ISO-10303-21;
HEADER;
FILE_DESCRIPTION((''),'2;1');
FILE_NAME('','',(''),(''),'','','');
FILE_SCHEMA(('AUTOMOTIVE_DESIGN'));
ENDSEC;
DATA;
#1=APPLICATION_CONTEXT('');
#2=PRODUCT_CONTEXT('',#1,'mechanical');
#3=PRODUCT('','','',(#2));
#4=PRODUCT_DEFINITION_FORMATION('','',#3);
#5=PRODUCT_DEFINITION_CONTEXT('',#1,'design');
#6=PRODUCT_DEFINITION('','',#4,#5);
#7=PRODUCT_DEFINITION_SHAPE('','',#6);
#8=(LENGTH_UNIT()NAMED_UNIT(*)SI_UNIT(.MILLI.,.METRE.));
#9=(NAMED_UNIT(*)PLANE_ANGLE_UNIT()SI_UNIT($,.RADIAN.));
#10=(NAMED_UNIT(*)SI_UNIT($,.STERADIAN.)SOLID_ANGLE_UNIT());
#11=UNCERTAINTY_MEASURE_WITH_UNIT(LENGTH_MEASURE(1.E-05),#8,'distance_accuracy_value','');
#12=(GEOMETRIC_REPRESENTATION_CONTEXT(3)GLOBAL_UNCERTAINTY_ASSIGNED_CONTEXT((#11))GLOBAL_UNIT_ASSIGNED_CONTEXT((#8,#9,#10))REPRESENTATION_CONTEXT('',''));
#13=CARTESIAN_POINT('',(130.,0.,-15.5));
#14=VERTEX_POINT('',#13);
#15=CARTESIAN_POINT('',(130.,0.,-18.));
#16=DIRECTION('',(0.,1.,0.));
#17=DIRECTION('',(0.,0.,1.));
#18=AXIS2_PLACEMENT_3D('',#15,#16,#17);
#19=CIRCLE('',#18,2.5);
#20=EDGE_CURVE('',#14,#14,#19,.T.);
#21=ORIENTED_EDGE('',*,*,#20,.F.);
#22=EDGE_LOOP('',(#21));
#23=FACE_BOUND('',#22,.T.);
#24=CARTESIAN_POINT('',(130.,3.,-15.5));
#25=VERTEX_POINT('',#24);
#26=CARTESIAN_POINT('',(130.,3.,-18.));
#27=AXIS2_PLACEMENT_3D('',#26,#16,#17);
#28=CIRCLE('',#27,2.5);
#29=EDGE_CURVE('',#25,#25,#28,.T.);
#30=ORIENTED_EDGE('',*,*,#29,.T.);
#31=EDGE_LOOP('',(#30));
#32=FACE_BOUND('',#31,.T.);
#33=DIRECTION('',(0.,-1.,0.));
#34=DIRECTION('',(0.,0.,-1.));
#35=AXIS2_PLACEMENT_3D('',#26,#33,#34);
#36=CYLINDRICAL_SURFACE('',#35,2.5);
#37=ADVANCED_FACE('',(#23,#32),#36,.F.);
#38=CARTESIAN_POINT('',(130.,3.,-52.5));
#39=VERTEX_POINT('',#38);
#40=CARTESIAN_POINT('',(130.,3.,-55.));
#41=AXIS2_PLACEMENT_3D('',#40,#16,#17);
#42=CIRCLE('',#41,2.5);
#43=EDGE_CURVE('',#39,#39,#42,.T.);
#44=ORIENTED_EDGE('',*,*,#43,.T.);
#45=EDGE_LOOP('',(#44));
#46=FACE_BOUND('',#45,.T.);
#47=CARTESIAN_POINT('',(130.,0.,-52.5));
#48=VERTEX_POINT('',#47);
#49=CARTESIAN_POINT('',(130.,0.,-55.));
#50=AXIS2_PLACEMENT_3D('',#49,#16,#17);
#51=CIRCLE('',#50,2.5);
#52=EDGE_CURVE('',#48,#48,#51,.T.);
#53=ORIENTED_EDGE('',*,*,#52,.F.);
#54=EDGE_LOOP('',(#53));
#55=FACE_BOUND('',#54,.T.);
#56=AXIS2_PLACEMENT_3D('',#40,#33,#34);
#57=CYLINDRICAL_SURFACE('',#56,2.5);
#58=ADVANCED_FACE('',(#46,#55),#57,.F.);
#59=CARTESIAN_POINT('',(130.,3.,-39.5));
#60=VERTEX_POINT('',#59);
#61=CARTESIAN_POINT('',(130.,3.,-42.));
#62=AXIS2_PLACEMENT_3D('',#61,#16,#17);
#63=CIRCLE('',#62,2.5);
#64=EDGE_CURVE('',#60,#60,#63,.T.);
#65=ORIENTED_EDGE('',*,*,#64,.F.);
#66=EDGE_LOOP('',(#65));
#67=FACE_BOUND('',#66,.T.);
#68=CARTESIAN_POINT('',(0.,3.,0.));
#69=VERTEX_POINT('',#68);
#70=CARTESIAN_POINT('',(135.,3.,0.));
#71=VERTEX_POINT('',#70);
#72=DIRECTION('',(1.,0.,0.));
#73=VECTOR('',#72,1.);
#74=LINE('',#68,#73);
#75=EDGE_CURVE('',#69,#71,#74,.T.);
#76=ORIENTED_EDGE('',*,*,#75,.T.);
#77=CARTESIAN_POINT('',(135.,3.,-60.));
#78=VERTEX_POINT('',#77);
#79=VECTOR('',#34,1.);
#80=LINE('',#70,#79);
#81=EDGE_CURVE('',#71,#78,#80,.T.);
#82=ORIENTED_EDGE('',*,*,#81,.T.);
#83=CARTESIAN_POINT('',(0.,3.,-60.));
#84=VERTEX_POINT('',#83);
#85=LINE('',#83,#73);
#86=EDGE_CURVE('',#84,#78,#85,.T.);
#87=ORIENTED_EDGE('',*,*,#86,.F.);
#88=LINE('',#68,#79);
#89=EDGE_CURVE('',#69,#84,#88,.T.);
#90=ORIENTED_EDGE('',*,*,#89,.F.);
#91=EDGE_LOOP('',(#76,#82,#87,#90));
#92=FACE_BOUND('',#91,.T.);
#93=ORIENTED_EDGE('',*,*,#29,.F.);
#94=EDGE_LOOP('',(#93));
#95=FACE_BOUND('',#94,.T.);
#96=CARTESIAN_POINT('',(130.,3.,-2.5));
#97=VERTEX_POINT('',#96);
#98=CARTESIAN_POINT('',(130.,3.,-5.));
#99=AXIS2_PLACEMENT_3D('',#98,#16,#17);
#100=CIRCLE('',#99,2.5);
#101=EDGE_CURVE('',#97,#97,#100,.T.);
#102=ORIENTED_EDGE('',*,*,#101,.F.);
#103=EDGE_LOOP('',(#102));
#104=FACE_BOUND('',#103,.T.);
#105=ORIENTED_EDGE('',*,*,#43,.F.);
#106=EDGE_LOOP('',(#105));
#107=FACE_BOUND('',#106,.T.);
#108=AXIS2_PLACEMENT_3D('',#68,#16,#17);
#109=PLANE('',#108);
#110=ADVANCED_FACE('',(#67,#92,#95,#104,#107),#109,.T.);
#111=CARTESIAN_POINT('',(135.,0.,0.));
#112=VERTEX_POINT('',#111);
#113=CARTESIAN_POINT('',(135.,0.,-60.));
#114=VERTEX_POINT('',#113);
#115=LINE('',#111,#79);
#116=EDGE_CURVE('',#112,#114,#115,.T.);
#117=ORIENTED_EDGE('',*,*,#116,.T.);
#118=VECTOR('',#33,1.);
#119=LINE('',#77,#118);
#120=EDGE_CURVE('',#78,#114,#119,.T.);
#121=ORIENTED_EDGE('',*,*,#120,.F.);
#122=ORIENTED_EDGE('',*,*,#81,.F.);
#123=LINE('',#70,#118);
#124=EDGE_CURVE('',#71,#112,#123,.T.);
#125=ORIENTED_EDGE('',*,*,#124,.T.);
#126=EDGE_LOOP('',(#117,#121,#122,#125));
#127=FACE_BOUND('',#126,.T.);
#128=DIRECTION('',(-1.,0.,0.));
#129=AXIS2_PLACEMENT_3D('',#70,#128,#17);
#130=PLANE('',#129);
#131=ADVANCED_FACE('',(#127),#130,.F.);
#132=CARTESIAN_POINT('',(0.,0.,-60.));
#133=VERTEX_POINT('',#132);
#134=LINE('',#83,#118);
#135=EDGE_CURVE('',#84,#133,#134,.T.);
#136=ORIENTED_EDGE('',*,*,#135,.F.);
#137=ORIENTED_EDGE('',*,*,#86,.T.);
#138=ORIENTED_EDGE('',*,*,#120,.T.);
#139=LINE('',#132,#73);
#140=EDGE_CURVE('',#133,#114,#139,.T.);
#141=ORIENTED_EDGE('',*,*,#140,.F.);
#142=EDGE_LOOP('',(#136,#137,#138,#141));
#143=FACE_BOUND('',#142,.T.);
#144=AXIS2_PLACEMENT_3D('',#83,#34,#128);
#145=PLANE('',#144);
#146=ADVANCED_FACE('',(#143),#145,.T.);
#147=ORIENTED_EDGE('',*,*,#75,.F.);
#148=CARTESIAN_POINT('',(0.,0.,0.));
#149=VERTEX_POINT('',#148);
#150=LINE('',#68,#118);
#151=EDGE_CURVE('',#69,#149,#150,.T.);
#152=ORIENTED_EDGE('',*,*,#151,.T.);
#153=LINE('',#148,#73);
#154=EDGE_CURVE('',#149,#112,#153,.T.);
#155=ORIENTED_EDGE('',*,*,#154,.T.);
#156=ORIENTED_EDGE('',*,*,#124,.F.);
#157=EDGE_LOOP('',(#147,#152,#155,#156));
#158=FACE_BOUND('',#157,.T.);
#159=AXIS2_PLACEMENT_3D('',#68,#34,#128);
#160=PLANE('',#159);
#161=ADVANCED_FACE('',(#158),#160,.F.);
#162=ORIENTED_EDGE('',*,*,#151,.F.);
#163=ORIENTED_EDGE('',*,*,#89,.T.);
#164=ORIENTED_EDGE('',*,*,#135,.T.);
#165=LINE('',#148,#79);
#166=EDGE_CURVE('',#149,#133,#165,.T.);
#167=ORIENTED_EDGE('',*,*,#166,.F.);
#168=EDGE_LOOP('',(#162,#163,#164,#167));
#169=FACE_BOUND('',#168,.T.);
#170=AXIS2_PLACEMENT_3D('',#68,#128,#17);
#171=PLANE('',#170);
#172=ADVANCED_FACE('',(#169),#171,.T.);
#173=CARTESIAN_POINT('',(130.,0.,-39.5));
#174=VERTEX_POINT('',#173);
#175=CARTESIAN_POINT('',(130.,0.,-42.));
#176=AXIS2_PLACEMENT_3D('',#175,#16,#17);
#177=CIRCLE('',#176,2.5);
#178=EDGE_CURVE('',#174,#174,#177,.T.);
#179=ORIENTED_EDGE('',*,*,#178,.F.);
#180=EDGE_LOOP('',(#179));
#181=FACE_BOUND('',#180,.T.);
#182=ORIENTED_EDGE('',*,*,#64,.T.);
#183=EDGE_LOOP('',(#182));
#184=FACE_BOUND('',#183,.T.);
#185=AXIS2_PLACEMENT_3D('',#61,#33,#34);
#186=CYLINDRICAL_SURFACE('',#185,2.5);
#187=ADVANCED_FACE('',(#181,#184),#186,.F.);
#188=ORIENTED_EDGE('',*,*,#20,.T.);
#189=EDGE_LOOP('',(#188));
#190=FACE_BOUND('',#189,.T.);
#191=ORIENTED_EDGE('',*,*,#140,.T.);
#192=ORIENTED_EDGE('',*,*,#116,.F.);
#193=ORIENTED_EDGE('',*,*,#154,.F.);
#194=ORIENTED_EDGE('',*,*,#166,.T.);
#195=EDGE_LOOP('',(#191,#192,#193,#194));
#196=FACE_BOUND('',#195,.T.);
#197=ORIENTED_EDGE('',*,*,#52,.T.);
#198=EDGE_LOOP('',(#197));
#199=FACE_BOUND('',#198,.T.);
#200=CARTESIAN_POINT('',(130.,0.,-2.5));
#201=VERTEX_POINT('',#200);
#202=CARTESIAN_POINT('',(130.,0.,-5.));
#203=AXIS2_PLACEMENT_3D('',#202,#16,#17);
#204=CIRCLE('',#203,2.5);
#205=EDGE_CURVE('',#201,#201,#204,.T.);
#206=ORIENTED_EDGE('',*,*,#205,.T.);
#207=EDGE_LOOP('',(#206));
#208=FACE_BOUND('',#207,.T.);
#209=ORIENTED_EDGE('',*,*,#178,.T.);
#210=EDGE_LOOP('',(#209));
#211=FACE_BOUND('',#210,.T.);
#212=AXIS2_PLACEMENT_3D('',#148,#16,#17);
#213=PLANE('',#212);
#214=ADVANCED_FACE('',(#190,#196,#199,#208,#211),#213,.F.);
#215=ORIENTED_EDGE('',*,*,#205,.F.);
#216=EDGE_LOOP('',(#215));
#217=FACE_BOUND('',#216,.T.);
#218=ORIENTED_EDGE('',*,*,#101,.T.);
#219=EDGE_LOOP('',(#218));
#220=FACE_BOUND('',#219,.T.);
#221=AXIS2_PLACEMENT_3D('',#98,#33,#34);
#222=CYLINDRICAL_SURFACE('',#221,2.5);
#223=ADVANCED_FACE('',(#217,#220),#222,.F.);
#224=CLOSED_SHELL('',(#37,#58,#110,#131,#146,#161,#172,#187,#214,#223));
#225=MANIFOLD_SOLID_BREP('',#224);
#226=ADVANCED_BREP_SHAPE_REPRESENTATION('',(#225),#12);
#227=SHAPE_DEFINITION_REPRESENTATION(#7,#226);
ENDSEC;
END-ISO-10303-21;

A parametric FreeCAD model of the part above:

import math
import FreeCAD as App
import Part
import Sketcher
Q = App.Units.Quantity

doc = App.newDocument("Part")
params = doc.addObject("Spreadsheet::Sheet", "Params")
for row, (alias, value) in enumerate([
    ("sketch1_radius", "2.5 mm"),
    ("sketch1_width", "135 mm"),
    ("sketch1_height", "60 mm"),
    ("pad1_length", "3 mm"),
], start=1):
    params.set(f"A{row}", alias)
    params.set(f"B{row}", "=" + value)
    params.setAlias(f"B{row}", alias)

body = doc.addObject("PartDesign::Body", "Body")

sketch1 = doc.addObject("Sketcher::SketchObject", "Sketch")
body.addObject(sketch1)
sketch1.AttachmentSupport = (doc.XZ_Plane, [""])
sketch1.MapMode = "FlatFace"
sketch1.addGeometry(Part.LineSegment(App.Vector(0, -60, 0), App.Vector(0, 0, 0)), False)
sketch1.addGeometry(Part.LineSegment(App.Vector(0, 0, 0), App.Vector(135, 0, 0)), False)
sketch1.addGeometry(Part.LineSegment(App.Vector(135, 0, 0), App.Vector(135, -60, 0)), False)
sketch1.addGeometry(Part.LineSegment(App.Vector(135, -60, 0), App.Vector(0, -60, 0)), False)
sketch1.addGeometry(Part.ArcOfCircle(Part.Circle(App.Vector(130, -5, 0), App.Vector(0, 0, 1), 2.5), math.radians(90), math.radians(270)), False)
sketch1.addGeometry(Part.ArcOfCircle(Part.Circle(App.Vector(130, -5, 0), App.Vector(0, 0, 1), 2.5), math.radians(-90), math.radians(0)), False)
sketch1.addGeometry(Part.ArcOfCircle(Part.Circle(App.Vector(130, -5, 0), App.Vector(0, 0, 1), 2.5), math.radians(0), math.radians(90)), False)
sketch1.addGeometry(Part.ArcOfCircle(Part.Circle(App.Vector(130, -18, 0), App.Vector(0, 0, 1), 2.5), math.radians(90), math.radians(270)), False)
sketch1.addGeometry(Part.ArcOfCircle(Part.Circle(App.Vector(130, -18, 0), App.Vector(0, 0, 1), 2.5), math.radians(-90), math.radians(0)), False)
sketch1.addGeometry(Part.ArcOfCircle(Part.Circle(App.Vector(130, -18, 0), App.Vector(0, 0, 1), 2.5), math.radians(0), math.radians(90)), False)
sketch1.addGeometry(Part.ArcOfCircle(Part.Circle(App.Vector(130, -42, 0), App.Vector(0, 0, 1), 2.5), math.radians(90), math.radians(270)), False)
sketch1.addGeometry(Part.ArcOfCircle(Part.Circle(App.Vector(130, -42, 0), App.Vector(0, 0, 1), 2.5), math.radians(-90), math.radians(0)), False)
sketch1.addGeometry(Part.ArcOfCircle(Part.Circle(App.Vector(130, -42, 0), App.Vector(0, 0, 1), 2.5), math.radians(0), math.radians(90)), False)
sketch1.addGeometry(Part.ArcOfCircle(Part.Circle(App.Vector(130, -55, 0), App.Vector(0, 0, 1), 2.5), math.radians(90), math.radians(270)), False)
sketch1.addGeometry(Part.ArcOfCircle(Part.Circle(App.Vector(130, -55, 0), App.Vector(0, 0, 1), 2.5), math.radians(-90), math.radians(0)), False)
sketch1.addGeometry(Part.ArcOfCircle(Part.Circle(App.Vector(130, -55, 0), App.Vector(0, 0, 1), 2.5), math.radians(0), math.radians(90)), False)
sketch1.addConstraint(Sketcher.Constraint("Coincident", 0, 2, 1, 1))
sketch1.addConstraint(Sketcher.Constraint("Coincident", 1, 2, 2, 1))
sketch1.addConstraint(Sketcher.Constraint("Coincident", 2, 2, 3, 1))
sketch1.addConstraint(Sketcher.Constraint("Coincident", 3, 2, 0, 1))
sketch1.addConstraint(Sketcher.Constraint("Tangent", 4, 2, 5, 1))
sketch1.addConstraint(Sketcher.Constraint("Tangent", 5, 2, 6, 1))
sketch1.addConstraint(Sketcher.Constraint("Tangent", 6, 2, 4, 1))
sketch1.addConstraint(Sketcher.Constraint("Tangent", 7, 2, 8, 1))
sketch1.addConstraint(Sketcher.Constraint("Tangent", 8, 2, 9, 1))
sketch1.addConstraint(Sketcher.Constraint("Tangent", 9, 2, 7, 1))
sketch1.addConstraint(Sketcher.Constraint("Tangent", 10, 2, 11, 1))
sketch1.addConstraint(Sketcher.Constraint("Tangent", 11, 2, 12, 1))
sketch1.addConstraint(Sketcher.Constraint("Tangent", 12, 2, 10, 1))
sketch1.addConstraint(Sketcher.Constraint("Tangent", 13, 2, 14, 1))
sketch1.addConstraint(Sketcher.Constraint("Tangent", 14, 2, 15, 1))
sketch1.addConstraint(Sketcher.Constraint("Tangent", 15, 2, 13, 1))
sketch1.addConstraint(Sketcher.Constraint("Vertical", 0))
sketch1.addConstraint(Sketcher.Constraint("Horizontal", 1))
sketch1.addConstraint(Sketcher.Constraint("Vertical", 2))
sketch1.addConstraint(Sketcher.Constraint("Horizontal", 3))
sketch1.addConstraint(Sketcher.Constraint("Coincident", 0, 2, -1, 1))
sketch1.addConstraint(Sketcher.Constraint("Equal", 6, 7))
sketch1.addConstraint(Sketcher.Constraint("Equal", 9, 10))
sketch1.addConstraint(Sketcher.Constraint("Equal", 12, 13))
sketch1.addConstraint(Sketcher.Constraint("Horizontal", 6, 3, 5, 2))
sketch1.addConstraint(Sketcher.Constraint("Horizontal", 9, 3, 8, 2))
sketch1.addConstraint(Sketcher.Constraint("Horizontal", 12, 3, 11, 2))
sketch1.addConstraint(Sketcher.Constraint("Horizontal", 15, 3, 14, 2))
sketch1.addConstraint(Sketcher.Constraint("Vertical", 6, 3, 7, 3))
sketch1.addConstraint(Sketcher.Constraint("Vertical", 9, 3, 10, 3))
sketch1.addConstraint(Sketcher.Constraint("Vertical", 12, 3, 13, 3))
sketch1.addConstraint(Sketcher.Constraint("Vertical", 15, 3, 4, 2))
sketch1.addConstraint(Sketcher.Constraint("Vertical", 4, 2, 6, 2))
sketch1.addConstraint(Sketcher.Constraint("Vertical", 6, 2, 7, 2))
sketch1.addConstraint(Sketcher.Constraint("Vertical", 7, 2, 9, 2))
sketch1.addConstraint(Sketcher.Constraint("Vertical", 9, 2, 10, 2))
sketch1.addConstraint(Sketcher.Constraint("Vertical", 10, 2, 12, 2))
sketch1.addConstraint(Sketcher.Constraint("Vertical", 12, 2, 13, 2))
sketch1.addConstraint(Sketcher.Constraint("Vertical", 13, 2, 15, 2))
sketch1.addConstraint(Sketcher.Constraint("Radius", 4, Q("2.5 mm")))
sketch1.addConstraint(Sketcher.Constraint("DistanceX", 1, 1, 1, 2, Q("135 mm")))
sketch1.addConstraint(Sketcher.Constraint("DistanceY", 0, 1, 0, 2, Q("60 mm")))
sketch1.addConstraint(Sketcher.Constraint("DistanceX", -1, 1, 4, 3, Q("130 mm")))
sketch1.addConstraint(Sketcher.Constraint("DistanceY", 4, 3, -1, 1, Q("5 mm")))
sketch1.addConstraint(Sketcher.Constraint("DistanceY", 7, 3, -1, 1, Q("18 mm")))
sketch1.addConstraint(Sketcher.Constraint("DistanceY", 10, 3, -1, 1, Q("42 mm")))
sketch1.addConstraint(Sketcher.Constraint("DistanceY", 13, 3, -1, 1, Q("55 mm")))
sketch1.setExpression("Constraints[39]", "Params.sketch1_radius")
sketch1.setExpression("Constraints[40]", "Params.sketch1_width")
sketch1.setExpression("Constraints[41]", "Params.sketch1_height")
pad1 = doc.addObject("PartDesign::Pad", "Pad")
body.addObject(pad1)
pad1.Profile = sketch1
pad1.setExpression("Length", "Params.pad1_length")
pad1.Reversed = True

doc.recompute()
